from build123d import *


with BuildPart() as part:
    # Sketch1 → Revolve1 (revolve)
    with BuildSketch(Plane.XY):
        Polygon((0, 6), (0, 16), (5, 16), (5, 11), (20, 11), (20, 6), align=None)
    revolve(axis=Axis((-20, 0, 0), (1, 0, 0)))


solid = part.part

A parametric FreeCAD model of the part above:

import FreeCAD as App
import Part
import Sketcher
from FreeCAD import Vector


def add_polygon(sketch, points):
    """Adds a closed chain of lines whose ends are joined by coincident constraints."""
    first, n = sketch.GeometryCount, len(points)
    for a, b in zip(points, points[1:] + points[:1]):
        sketch.addGeometry(Part.LineSegment(App.Vector(*a, 0), App.Vector(*b, 0)), False)
    for i in range(n):
        sketch.addConstraint(Sketcher.Constraint("Coincident", first + i, 2, first + (i + 1) % n, 1))

doc = App.newDocument("Part")
params = doc.addObject("Spreadsheet::Sheet", "Params")
for row, (alias, value) in enumerate([
    ("sketch1_width", "20 mm"),
    ("sketch1_width2", "15 mm"),
    ("revolution_angle", "360 deg"),
], start=1):
    params.set(f"A{row}", alias)
    params.set(f"B{row}", "=" + value)
    params.setAlias(f"B{row}", alias)

body = doc.addObject("PartDesign::Body", "Body")

sketch1 = body.newObject("Sketcher::SketchObject", "Sketch")
sketch1.AttachmentSupport = (doc.getObject("XY_Plane"), [""])
sketch1.MapMode = "FlatFace"
add_polygon(sketch1, [(0, 16), (0, 6), (20, 6), (20, 11), (5, 11), (5, 16)])
sketch1.addConstraint([
    Sketcher.Constraint("Vertical", 0),
    Sketcher.Constraint("Horizontal", 1),
    Sketcher.Constraint("Vertical", 2),
    Sketcher.Constraint("Horizontal", 3),
    Sketcher.Constraint("Vertical", 4),
    Sketcher.Constraint("Horizontal", 5),
    Sketcher.Constraint("PointOnObject", 0, 2, -2),
    Sketcher.Constraint("Equal", 5, 2),
    Sketcher.Constraint("Equal", 2, 4),
    Sketcher.Constraint("DistanceX", 1, 1, 1, 2, 20.0),
    Sketcher.Constraint("DistanceX", 3, 2, 3, 1, 15.0),
    Sketcher.Constraint("DistanceY", -1, 1, 0, 2, 6.0),
])
sketch1.setExpression("Constraints[15]", "Params.sketch1_width")
sketch1.setExpression("Constraints[16]", "Params.sketch1_width2")
revolution = body.newObject("PartDesign::Revolution", "Revolution")
revolution.Profile = sketch1
revolution.ReferenceAxis = (sketch1, ["H_Axis"])
revolution.setExpression("Angle", "Params.revolution_angle")

doc.recompute()
